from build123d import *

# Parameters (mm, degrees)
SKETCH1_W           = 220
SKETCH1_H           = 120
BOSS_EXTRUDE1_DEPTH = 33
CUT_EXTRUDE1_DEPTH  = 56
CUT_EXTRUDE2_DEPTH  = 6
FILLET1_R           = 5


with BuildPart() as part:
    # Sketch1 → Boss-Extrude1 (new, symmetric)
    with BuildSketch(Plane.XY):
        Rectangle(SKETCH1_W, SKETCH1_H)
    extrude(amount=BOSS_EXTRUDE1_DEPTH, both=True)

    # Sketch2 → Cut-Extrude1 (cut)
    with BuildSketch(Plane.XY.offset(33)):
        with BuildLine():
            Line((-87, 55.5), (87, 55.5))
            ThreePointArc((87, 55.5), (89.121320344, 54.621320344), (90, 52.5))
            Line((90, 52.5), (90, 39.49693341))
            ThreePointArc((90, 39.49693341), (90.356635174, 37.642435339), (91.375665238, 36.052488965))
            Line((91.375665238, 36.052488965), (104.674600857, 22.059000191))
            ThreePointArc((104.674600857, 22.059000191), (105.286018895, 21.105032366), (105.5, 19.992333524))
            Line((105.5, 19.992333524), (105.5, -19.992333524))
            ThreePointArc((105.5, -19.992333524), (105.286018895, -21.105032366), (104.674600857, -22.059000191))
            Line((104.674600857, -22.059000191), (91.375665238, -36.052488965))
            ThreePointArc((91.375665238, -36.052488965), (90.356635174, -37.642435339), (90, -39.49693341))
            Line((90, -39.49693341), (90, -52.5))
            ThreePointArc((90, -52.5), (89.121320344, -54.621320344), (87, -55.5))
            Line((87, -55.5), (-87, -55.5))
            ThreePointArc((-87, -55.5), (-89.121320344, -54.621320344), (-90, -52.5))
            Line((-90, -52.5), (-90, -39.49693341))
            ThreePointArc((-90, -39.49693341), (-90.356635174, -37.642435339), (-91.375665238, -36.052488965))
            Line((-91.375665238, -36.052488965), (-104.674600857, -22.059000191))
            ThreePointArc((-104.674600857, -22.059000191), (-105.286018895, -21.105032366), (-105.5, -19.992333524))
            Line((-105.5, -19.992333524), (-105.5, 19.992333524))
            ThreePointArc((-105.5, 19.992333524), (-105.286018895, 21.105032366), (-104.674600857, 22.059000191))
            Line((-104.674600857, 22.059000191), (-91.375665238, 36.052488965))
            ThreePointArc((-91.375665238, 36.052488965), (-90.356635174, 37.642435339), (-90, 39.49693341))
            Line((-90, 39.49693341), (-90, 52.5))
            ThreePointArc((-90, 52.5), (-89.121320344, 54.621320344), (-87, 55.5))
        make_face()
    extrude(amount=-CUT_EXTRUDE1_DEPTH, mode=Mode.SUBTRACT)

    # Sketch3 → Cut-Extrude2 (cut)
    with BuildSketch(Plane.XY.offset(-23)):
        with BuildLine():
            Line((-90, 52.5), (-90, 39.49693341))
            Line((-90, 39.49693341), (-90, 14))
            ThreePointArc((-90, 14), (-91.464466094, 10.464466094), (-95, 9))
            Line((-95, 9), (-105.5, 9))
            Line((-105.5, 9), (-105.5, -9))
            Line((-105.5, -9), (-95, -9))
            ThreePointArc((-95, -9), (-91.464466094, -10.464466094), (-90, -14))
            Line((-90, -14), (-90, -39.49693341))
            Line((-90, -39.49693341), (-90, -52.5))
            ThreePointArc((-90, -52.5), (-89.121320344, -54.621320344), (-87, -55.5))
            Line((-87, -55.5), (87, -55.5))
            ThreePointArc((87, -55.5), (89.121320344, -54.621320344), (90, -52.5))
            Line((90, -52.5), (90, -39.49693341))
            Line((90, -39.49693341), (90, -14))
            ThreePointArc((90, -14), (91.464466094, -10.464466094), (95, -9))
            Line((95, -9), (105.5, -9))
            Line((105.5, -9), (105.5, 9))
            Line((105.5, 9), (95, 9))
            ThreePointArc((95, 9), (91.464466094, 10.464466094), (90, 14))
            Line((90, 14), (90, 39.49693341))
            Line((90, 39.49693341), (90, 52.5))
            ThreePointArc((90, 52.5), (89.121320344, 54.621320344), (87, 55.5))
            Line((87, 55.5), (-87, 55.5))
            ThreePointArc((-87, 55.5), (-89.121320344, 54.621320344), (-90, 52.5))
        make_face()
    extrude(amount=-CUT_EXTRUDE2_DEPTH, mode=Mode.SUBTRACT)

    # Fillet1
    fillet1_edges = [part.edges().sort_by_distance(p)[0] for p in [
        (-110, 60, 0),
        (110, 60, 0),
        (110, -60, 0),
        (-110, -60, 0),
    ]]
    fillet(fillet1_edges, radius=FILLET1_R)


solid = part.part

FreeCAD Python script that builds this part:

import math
import FreeCAD as App
import Part
import Sketcher
Q = App.Units.Quantity


def edges_at(feature, points):
    """Names of the edges that pass closest to the given points."""
    edges = feature.Shape.Edges
    near = lambda p: min(range(len(edges)), key=lambda i: edges[i].distToShape(Part.Vertex(*p))[0])
    return sorted({f"Edge{near(p) + 1}" for p in points})

doc = App.newDocument("Part")
body = doc.addObject("PartDesign::Body", "Body")

sketch1 = body.newObject("Sketcher::SketchObject", "Sketch")
sketch1.AttachmentSupport = (doc.getObject("XY_Plane"), [""])
sketch1.MapMode = "FlatFace"
sketch1.addGeometry(Part.LineSegment(App.Vector(-110, 60, 0), App.Vector(-110, -60, 0)), False)
sketch1.addGeometry(Part.LineSegment(App.Vector(-110, -60, 0), App.Vector(110, -60, 0)), False)
sketch1.addGeometry(Part.LineSegment(App.Vector(110, -60, 0), App.Vector(110, 60, 0)), False)
sketch1.addGeometry(Part.LineSegment(App.Vector(110, 60, 0), App.Vector(-110, 60, 0)), False)
sketch1.addConstraint(Sketcher.Constraint("Coincident", 0, 2, 1, 1))
sketch1.addConstraint(Sketcher.Constraint("Coincident", 1, 2, 2, 1))
sketch1.addConstraint(Sketcher.Constraint("Coincident", 2, 2, 3, 1))
sketch1.addConstraint(Sketcher.Constraint("Coincident", 3, 2, 0, 1))
sketch1.addConstraint(Sketcher.Constraint("Vertical", 0))
sketch1.addConstraint(Sketcher.Constraint("Horizontal", 1))
sketch1.addConstraint(Sketcher.Constraint("Vertical", 2))
sketch1.addConstraint(Sketcher.Constraint("Horizontal", 3))
sketch1.addConstraint(Sketcher.Constraint("Symmetric", 0, 2, 2, 2, -1, 1))
sketch1.addConstraint(Sketcher.Constraint("DistanceX", 1, 1, 1, 2, Q("220 mm")))
sketch1.addConstraint(Sketcher.Constraint("DistanceY", 0, 2, 0, 1, Q("120 mm")))
pad1 = body.newObject("PartDesign::Pad", "Pad")
pad1.Profile = sketch1
pad1.Length = 66
pad1.Midplane = True

sketch2 = body.newObject("Sketcher::SketchObject", "Sketch001")
sketch2.AttachmentSupport = (doc.getObject("XY_Plane"), [""])
sketch2.MapMode = "FlatFace"
sketch2.AttachmentOffset = App.Placement(App.Vector(0, 0, 33), App.Rotation())
sketch2.addGeometry(Part.LineSegment(App.Vector(87, 55.5, 0), App.Vector(-87, 55.5, 0)), False)
sketch2.addGeometry(Part.ArcOfCircle(Part.Circle(App.Vector(-87, 52.5, 0), App.Vector(0, 0, 1), 3), math.radians(90), math.radians(180)), False)
sketch2.addGeometry(Part.LineSegment(App.Vector(-90, 52.5, 0), App.Vector(-90, 39.496933, 0)), False)
sketch2.addGeometry(Part.ArcOfCircle(Part.Circle(App.Vector(-95, 39.496933, 0), App.Vector(0, 0, 1), 5), math.radians(-43.542219), math.radians(0)), False)
sketch2.addGeometry(Part.LineSegment(App.Vector(-91.375665, 36.052489, 0), App.Vector(-104.674601, 22.059, 0)), False)
sketch2.addGeometry(Part.ArcOfCircle(Part.Circle(App.Vector(-102.5, 19.992334, 0), App.Vector(0, 0, 1), 3), math.radians(136.457781), math.radians(180)), False)
sketch2.addGeometry(Part.LineSegment(App.Vector(-105.5, 19.992334, 0), App.Vector(-105.5, -19.992334, 0)), False)
sketch2.addGeometry(Part.ArcOfCircle(Part.Circle(App.Vector(-102.5, -19.992334, 0), App.Vector(0, 0, 1), 3), math.radians(-180), math.radians(-136.457781)), False)
sketch2.addGeometry(Part.LineSegment(App.Vector(-104.674601, -22.059, 0), App.Vector(-91.375665, -36.052489, 0)), False)
sketch2.addGeometry(Part.ArcOfCircle(Part.Circle(App.Vector(-95, -39.496933, 0), App.Vector(0, 0, 1), 5), math.radians(0), math.radians(43.542219)), False)
sketch2.addGeometry(Part.LineSegment(App.Vector(-90, -39.496933, 0), App.Vector(-90, -52.5, 0)), False)
sketch2.addGeometry(Part.ArcOfCircle(Part.Circle(App.Vector(-87, -52.5, 0), App.Vector(0, 0, 1), 3), math.radians(180), math.radians(270)), False)
sketch2.addGeometry(Part.LineSegment(App.Vector(-87, -55.5, 0), App.Vector(87, -55.5, 0)), False)
sketch2.addGeometry(Part.ArcOfCircle(Part.Circle(App.Vector(87, -52.5, 0), App.Vector(0, 0, 1), 3), math.radians(-90), math.radians(0)), False)
sketch2.addGeometry(Part.LineSegment(App.Vector(90, -52.5, 0), App.Vector(90, -39.496933, 0)), False)
sketch2.addGeometry(Part.ArcOfCircle(Part.Circle(App.Vector(95, -39.496933, 0), App.Vector(0, 0, 1), 5), math.radians(136.457781), math.radians(180)), False)
sketch2.addGeometry(Part.LineSegment(App.Vector(91.375665, -36.052489, 0), App.Vector(104.674601, -22.059, 0)), False)
sketch2.addGeometry(Part.ArcOfCircle(Part.Circle(App.Vector(102.5, -19.992334, 0), App.Vector(0, 0, 1), 3), math.radians(-43.542219), math.radians(0)), False)
sketch2.addGeometry(Part.LineSegment(App.Vector(105.5, -19.992334, 0), App.Vector(105.5, 19.992334, 0)), False)
sketch2.addGeometry(Part.ArcOfCircle(Part.Circle(App.Vector(102.5, 19.992334, 0), App.Vector(0, 0, 1), 3), math.radians(0), math.radians(43.542219)), False)
sketch2.addGeometry(Part.LineSegment(App.Vector(104.674601, 22.059, 0), App.Vector(91.375665, 36.052489, 0)), False)
sketch2.addGeometry(Part.ArcOfCircle(Part.Circle(App.Vector(95, 39.496933, 0), App.Vector(0, 0, 1), 5), math.radians(180), math.radians(223.542219)), False)
sketch2.addGeometry(Part.LineSegment(App.Vector(90, 39.496933, 0), App.Vector(90, 52.5, 0)), False)
sketch2.addGeometry(Part.ArcOfCircle(Part.Circle(App.Vector(87, 52.5, 0), App.Vector(0, 0, 1), 3), math.radians(0), math.radians(90)), False)
sketch2.addConstraint(Sketcher.Constraint("Tangent", 0, 2, 1, 1))
sketch2.addConstraint(Sketcher.Constraint("Tangent", 1, 2, 2, 1))
sketch2.addConstraint(Sketcher.Constraint("Tangent", 2, 2, 3, 2))
sketch2.addConstraint(Sketcher.Constraint("Tangent", 3, 1, 4, 1))
sketch2.addConstraint(Sketcher.Constraint("Tangent", 4, 2, 5, 1))
sketch2.addConstraint(Sketcher.Constraint("Tangent", 5, 2, 6, 1))
sketch2.addConstraint(Sketcher.Constraint("Tangent", 6, 2, 7, 1))
sketch2.addConstraint(Sketcher.Constraint("Tangent", 7, 2, 8, 1))
sketch2.addConstraint(Sketcher.Constraint("Tangent", 8, 2, 9, 2))
sketch2.addConstraint(Sketcher.Constraint("Tangent", 9, 1, 10, 1))
sketch2.addConstraint(Sketcher.Constraint("Tangent", 10, 2, 11, 1))
sketch2.addConstraint(Sketcher.Constraint("Tangent", 11, 2, 12, 1))
sketch2.addConstraint(Sketcher.Constraint("Tangent", 12, 2, 13, 1))
sketch2.addConstraint(Sketcher.Constraint("Tangent", 13, 2, 14, 1))
sketch2.addConstraint(Sketcher.Constraint("Tangent", 14, 2, 15, 2))
sketch2.addConstraint(Sketcher.Constraint("Tangent", 15, 1, 16, 1))
sketch2.addConstraint(Sketcher.Constraint("Tangent", 16, 2, 17, 1))
sketch2.addConstraint(Sketcher.Constraint("Tangent", 17, 2, 18, 1))
sketch2.addConstraint(Sketcher.Constraint("Tangent", 18, 2, 19, 1))
sketch2.addConstraint(Sketcher.Constraint("Tangent", 19, 2, 20, 1))
sketch2.addConstraint(Sketcher.Constraint("Tangent", 20, 2, 21, 2))
sketch2.addConstraint(Sketcher.Constraint("Tangent", 21, 1, 22, 1))
sketch2.addConstraint(Sketcher.Constraint("Tangent", 22, 2, 23, 1))
sketch2.addConstraint(Sketcher.Constraint("Tangent", 23, 2, 0, 1))
sketch2.addConstraint(Sketcher.Constraint("Horizontal", 0))
sketch2.addConstraint(Sketcher.Constraint("Vertical", 2))
sketch2.addConstraint(Sketcher.Constraint("Vertical", 6))
sketch2.addConstraint(Sketcher.Constraint("Vertical", 10))
sketch2.addConstraint(Sketcher.Constraint("Horizontal", 12))
sketch2.addConstraint(Sketcher.Constraint("Vertical", 14))
sketch2.addConstraint(Sketcher.Constraint("Vertical", 18))
sketch2.addConstraint(Sketcher.Constraint("Vertical", 22))
sketch2.addConstraint(Sketcher.Constraint("Equal", 1, 5))
sketch2.addConstraint(Sketcher.Constraint("Equal", 5, 7))
sketch2.addConstraint(Sketcher.Constraint("Equal", 3, 9))
sketch2.addConstraint(Sketcher.Constraint("Equal", 7, 11))
sketch2.addConstraint(Sketcher.Constraint("Equal", 11, 13))
sketch2.addConstraint(Sketcher.Constraint("Equal", 9, 15))
sketch2.addConstraint(Sketcher.Constraint("Equal", 13, 17))
sketch2.addConstraint(Sketcher.Constraint("Equal", 17, 19))
sketch2.addConstraint(Sketcher.Constraint("Equal", 15, 21))
sketch2.addConstraint(Sketcher.Constraint("Equal", 19, 23))
sketch2.addConstraint(Sketcher.Constraint("Symmetric", 1, 3, 13, 3, -1, 1))
sketch2.addConstraint(Sketcher.Constraint("Symmetric", 5, 3, 17, 3, -1, 1))
sketch2.addConstraint(Sketcher.Constraint("Symmetric", 9, 3, 21, 3, -1, 1))
sketch2.addConstraint(Sketcher.Constraint("Symmetric", 9, 3, 15, 3, -2))
sketch2.addConstraint(Sketcher.Constraint("Symmetric", 4, 2, 19, 2, -2))
sketch2.addConstraint(Sketcher.Constraint("Parallel", 8, 20))
sketch2.addConstraint(Sketcher.Constraint("Radius", 1, Q("3 mm")))
sketch2.addConstraint(Sketcher.Constraint("Radius", 3, Q("5 mm")))
sketch2.addConstraint(Sketcher.Constraint("DistanceX", 0, 2, 0, 1, Q("174 mm")))
sketch2.addConstraint(Sketcher.Constraint("DistanceY", 11, 3, 1, 3, Q("105 mm")))
sketch2.addConstraint(Sketcher.Constraint("DistanceX", 5, 3, -1, 1, Q("102.5 mm")))
sketch2.addConstraint(Sketcher.Constraint("DistanceY", -1, 1, 4, 2, Q("22.059 mm")))
sketch2.addConstraint(Sketcher.Constraint("DistanceX", 4, 2, -1, 1, Q("104.674601 mm")))
pocket1 = body.newObject("PartDesign::Pocket", "Pocket")
pocket1.Profile = sketch2
pocket1.Length = 56

sketch3 = body.newObject("Sketcher::SketchObject", "Sketch002")
sketch3.AttachmentSupport = (doc.getObject("XY_Plane"), [""])
sketch3.MapMode = "FlatFace"
sketch3.AttachmentOffset = App.Placement(App.Vector(0, 0, -23), App.Rotation())
sketch3.addGeometry(Part.LineSegment(App.Vector(-90, 52.5, 0), App.Vector(-90, 14, 0)), False)
sketch3.addGeometry(Part.ArcOfCircle(Part.Circle(App.Vector(-95, 14, 0), App.Vector(0, 0, 1), 5), math.radians(-90), math.radians(0)), False)
sketch3.addGeometry(Part.LineSegment(App.Vector(-95, 9, 0), App.Vector(-105.5, 9, 0)), False)
sketch3.addGeometry(Part.LineSegment(App.Vector(-105.5, 9, 0), App.Vector(-105.5, -9, 0)), False)
sketch3.addGeometry(Part.LineSegment(App.Vector(-105.5, -9, 0), App.Vector(-95, -9, 0)), False)
sketch3.addGeometry(Part.ArcOfCircle(Part.Circle(App.Vector(-95, -14, 0), App.Vector(0, 0, 1), 5), math.radians(0), math.radians(90)), False)
sketch3.addGeometry(Part.LineSegment(App.Vector(-90, -14, 0), App.Vector(-90, -52.5, 0)), False)
sketch3.addGeometry(Part.ArcOfCircle(Part.Circle(App.Vector(-87, -52.5, 0), App.Vector(0, 0, 1), 3), math.radians(180), math.radians(270)), False)
sketch3.addGeometry(Part.LineSegment(App.Vector(-87, -55.5, 0), App.Vector(87, -55.5, 0)), False)
sketch3.addGeometry(Part.ArcOfCircle(Part.Circle(App.Vector(87, -52.5, 0), App.Vector(0, 0, 1), 3), math.radians(-90), math.radians(0)), False)
sketch3.addGeometry(Part.LineSegment(App.Vector(90, -52.5, 0), App.Vector(90, -14, 0)), False)
sketch3.addGeometry(Part.ArcOfCircle(Part.Circle(App.Vector(95, -14, 0), App.Vector(0, 0, 1), 5), math.radians(90), math.radians(180)), False)
sketch3.addGeometry(Part.LineSegment(App.Vector(95, -9, 0), App.Vector(105.5, -9, 0)), False)
sketch3.addGeometry(Part.LineSegment(App.Vector(105.5, -9, 0), App.Vector(105.5, 9, 0)), False)
sketch3.addGeometry(Part.LineSegment(App.Vector(105.5, 9, 0), App.Vector(95, 9, 0)), False)
sketch3.addGeometry(Part.ArcOfCircle(Part.Circle(App.Vector(95, 14, 0), App.Vector(0, 0, 1), 5), math.radians(180), math.radians(270)), False)
sketch3.addGeometry(Part.LineSegment(App.Vector(90, 14, 0), App.Vector(90, 52.5, 0)), False)
sketch3.addGeometry(Part.ArcOfCircle(Part.Circle(App.Vector(87, 52.5, 0), App.Vector(0, 0, 1), 3), math.radians(0), math.radians(90)), False)
sketch3.addGeometry(Part.LineSegment(App.Vector(87, 55.5, 0), App.Vector(-87, 55.5, 0)), False)
sketch3.addGeometry(Part.ArcOfCircle(Part.Circle(App.Vector(-87, 52.5, 0), App.Vector(0, 0, 1), 3), math.radians(90), math.radians(180)), False)
sketch3.addConstraint(Sketcher.Constraint("Tangent", 0, 2, 1, 2))
sketch3.addConstraint(Sketcher.Constraint("Tangent", 1, 1, 2, 1))
sketch3.addConstraint(Sketcher.Constraint("Coincident", 2, 2, 3, 1))
sketch3.addConstraint(Sketcher.Constraint("Coincident", 3, 2, 4, 1))
sketch3.addConstraint(Sketcher.Constraint("Tangent", 4, 2, 5, 2))
sketch3.addConstraint(Sketcher.Constraint("Tangent", 5, 1, 6, 1))
sketch3.addConstraint(Sketcher.Constraint("Tangent", 6, 2, 7, 1))
sketch3.addConstraint(Sketcher.Constraint("Tangent", 7, 2, 8, 1))
sketch3.addConstraint(Sketcher.Constraint("Tangent", 8, 2, 9, 1))
sketch3.addConstraint(Sketcher.Constraint("Tangent", 9, 2, 10, 1))
sketch3.addConstraint(Sketcher.Constraint("Tangent", 10, 2, 11, 2))
sketch3.addConstraint(Sketcher.Constraint("Tangent", 11, 1, 12, 1))
sketch3.addConstraint(Sketcher.Constraint("Coincident", 12, 2, 13, 1))
sketch3.addConstraint(Sketcher.Constraint("Coincident", 13, 2, 14, 1))
sketch3.addConstraint(Sketcher.Constraint("Tangent", 14, 2, 15, 2))
sketch3.addConstraint(Sketcher.Constraint("Tangent", 15, 1, 16, 1))
sketch3.addConstraint(Sketcher.Constraint("Tangent", 16, 2, 17, 1))
sketch3.addConstraint(Sketcher.Constraint("Tangent", 17, 2, 18, 1))
sketch3.addConstraint(Sketcher.Constraint("Tangent", 18, 2, 19, 1))
sketch3.addConstraint(Sketcher.Constraint("Tangent", 19, 2, 0, 1))
sketch3.addConstraint(Sketcher.Constraint("Vertical", 0))
sketch3.addConstraint(Sketcher.Constraint("Horizontal", 2))
sketch3.addConstraint(Sketcher.Constraint("Vertical", 3))
sketch3.addConstraint(Sketcher.Constraint("Horizontal", 4))
sketch3.addConstraint(Sketcher.Constraint("Vertical", 6))
sketch3.addConstraint(Sketcher.Constraint("Horizontal", 8))
sketch3.addConstraint(Sketcher.Constraint("Vertical", 10))
sketch3.addConstraint(Sketcher.Constraint("Horizontal", 12))
sketch3.addConstraint(Sketcher.Constraint("Vertical", 13))
sketch3.addConstraint(Sketcher.Constraint("Horizontal", 14))
sketch3.addConstraint(Sketcher.Constraint("Vertical", 16))
sketch3.addConstraint(Sketcher.Constraint("Horizontal", 18))
sketch3.addConstraint(Sketcher.Constraint("Equal", 1, 5))
sketch3.addConstraint(Sketcher.Constraint("Equal", 7, 9))
sketch3.addConstraint(Sketcher.Constraint("Equal", 5, 11))
sketch3.addConstraint(Sketcher.Constraint("Equal", 11, 15))
sketch3.addConstraint(Sketcher.Constraint("Equal", 9, 17))
sketch3.addConstraint(Sketcher.Constraint("Equal", 17, 19))
sketch3.addConstraint(Sketcher.Constraint("Symmetric", 1, 3, 11, 3, -1, 1))
sketch3.addConstraint(Sketcher.Constraint("Symmetric", 5, 3, 15, 3, -1, 1))
sketch3.addConstraint(Sketcher.Constraint("Symmetric", 5, 3, 11, 3, -2))
sketch3.addConstraint(Sketcher.Constraint("Equal", 4, 12))
sketch3.addConstraint(Sketcher.Constraint("Equal", 0, 6))
sketch3.addConstraint(Sketcher.Constraint("Radius", 1, Q("5 mm")))
sketch3.addConstraint(Sketcher.Constraint("Radius", 7, Q("3 mm")))
sketch3.addConstraint(Sketcher.Constraint("DistanceX", 8, 1, 8, 2, Q("174 mm")))
sketch3.addConstraint(Sketcher.Constraint("DistanceY", 3, 2, 3, 1, Q("18 mm")))
sketch3.addConstraint(Sketcher.Constraint("DistanceX", 2, 2, 2, 1, Q("10.5 mm")))
sketch3.addConstraint(Sketcher.Constraint("DistanceY", 0, 2, 0, 1, Q("38.5 mm")))
pocket2 = body.newObject("PartDesign::Pocket", "Pocket001")
pocket2.Profile = sketch3
pocket2.Length = 6
doc.recompute()

fillet = body.newObject("PartDesign::Fillet", "Fillet")
fillet.Base = (pocket2, edges_at(pocket2, [
    (-110, 60, 0),
    (110, 60, 0),
    (110, -60, 0),
    (-110, -60, 0),
]))
fillet.Radius = 5

doc.recompute()
